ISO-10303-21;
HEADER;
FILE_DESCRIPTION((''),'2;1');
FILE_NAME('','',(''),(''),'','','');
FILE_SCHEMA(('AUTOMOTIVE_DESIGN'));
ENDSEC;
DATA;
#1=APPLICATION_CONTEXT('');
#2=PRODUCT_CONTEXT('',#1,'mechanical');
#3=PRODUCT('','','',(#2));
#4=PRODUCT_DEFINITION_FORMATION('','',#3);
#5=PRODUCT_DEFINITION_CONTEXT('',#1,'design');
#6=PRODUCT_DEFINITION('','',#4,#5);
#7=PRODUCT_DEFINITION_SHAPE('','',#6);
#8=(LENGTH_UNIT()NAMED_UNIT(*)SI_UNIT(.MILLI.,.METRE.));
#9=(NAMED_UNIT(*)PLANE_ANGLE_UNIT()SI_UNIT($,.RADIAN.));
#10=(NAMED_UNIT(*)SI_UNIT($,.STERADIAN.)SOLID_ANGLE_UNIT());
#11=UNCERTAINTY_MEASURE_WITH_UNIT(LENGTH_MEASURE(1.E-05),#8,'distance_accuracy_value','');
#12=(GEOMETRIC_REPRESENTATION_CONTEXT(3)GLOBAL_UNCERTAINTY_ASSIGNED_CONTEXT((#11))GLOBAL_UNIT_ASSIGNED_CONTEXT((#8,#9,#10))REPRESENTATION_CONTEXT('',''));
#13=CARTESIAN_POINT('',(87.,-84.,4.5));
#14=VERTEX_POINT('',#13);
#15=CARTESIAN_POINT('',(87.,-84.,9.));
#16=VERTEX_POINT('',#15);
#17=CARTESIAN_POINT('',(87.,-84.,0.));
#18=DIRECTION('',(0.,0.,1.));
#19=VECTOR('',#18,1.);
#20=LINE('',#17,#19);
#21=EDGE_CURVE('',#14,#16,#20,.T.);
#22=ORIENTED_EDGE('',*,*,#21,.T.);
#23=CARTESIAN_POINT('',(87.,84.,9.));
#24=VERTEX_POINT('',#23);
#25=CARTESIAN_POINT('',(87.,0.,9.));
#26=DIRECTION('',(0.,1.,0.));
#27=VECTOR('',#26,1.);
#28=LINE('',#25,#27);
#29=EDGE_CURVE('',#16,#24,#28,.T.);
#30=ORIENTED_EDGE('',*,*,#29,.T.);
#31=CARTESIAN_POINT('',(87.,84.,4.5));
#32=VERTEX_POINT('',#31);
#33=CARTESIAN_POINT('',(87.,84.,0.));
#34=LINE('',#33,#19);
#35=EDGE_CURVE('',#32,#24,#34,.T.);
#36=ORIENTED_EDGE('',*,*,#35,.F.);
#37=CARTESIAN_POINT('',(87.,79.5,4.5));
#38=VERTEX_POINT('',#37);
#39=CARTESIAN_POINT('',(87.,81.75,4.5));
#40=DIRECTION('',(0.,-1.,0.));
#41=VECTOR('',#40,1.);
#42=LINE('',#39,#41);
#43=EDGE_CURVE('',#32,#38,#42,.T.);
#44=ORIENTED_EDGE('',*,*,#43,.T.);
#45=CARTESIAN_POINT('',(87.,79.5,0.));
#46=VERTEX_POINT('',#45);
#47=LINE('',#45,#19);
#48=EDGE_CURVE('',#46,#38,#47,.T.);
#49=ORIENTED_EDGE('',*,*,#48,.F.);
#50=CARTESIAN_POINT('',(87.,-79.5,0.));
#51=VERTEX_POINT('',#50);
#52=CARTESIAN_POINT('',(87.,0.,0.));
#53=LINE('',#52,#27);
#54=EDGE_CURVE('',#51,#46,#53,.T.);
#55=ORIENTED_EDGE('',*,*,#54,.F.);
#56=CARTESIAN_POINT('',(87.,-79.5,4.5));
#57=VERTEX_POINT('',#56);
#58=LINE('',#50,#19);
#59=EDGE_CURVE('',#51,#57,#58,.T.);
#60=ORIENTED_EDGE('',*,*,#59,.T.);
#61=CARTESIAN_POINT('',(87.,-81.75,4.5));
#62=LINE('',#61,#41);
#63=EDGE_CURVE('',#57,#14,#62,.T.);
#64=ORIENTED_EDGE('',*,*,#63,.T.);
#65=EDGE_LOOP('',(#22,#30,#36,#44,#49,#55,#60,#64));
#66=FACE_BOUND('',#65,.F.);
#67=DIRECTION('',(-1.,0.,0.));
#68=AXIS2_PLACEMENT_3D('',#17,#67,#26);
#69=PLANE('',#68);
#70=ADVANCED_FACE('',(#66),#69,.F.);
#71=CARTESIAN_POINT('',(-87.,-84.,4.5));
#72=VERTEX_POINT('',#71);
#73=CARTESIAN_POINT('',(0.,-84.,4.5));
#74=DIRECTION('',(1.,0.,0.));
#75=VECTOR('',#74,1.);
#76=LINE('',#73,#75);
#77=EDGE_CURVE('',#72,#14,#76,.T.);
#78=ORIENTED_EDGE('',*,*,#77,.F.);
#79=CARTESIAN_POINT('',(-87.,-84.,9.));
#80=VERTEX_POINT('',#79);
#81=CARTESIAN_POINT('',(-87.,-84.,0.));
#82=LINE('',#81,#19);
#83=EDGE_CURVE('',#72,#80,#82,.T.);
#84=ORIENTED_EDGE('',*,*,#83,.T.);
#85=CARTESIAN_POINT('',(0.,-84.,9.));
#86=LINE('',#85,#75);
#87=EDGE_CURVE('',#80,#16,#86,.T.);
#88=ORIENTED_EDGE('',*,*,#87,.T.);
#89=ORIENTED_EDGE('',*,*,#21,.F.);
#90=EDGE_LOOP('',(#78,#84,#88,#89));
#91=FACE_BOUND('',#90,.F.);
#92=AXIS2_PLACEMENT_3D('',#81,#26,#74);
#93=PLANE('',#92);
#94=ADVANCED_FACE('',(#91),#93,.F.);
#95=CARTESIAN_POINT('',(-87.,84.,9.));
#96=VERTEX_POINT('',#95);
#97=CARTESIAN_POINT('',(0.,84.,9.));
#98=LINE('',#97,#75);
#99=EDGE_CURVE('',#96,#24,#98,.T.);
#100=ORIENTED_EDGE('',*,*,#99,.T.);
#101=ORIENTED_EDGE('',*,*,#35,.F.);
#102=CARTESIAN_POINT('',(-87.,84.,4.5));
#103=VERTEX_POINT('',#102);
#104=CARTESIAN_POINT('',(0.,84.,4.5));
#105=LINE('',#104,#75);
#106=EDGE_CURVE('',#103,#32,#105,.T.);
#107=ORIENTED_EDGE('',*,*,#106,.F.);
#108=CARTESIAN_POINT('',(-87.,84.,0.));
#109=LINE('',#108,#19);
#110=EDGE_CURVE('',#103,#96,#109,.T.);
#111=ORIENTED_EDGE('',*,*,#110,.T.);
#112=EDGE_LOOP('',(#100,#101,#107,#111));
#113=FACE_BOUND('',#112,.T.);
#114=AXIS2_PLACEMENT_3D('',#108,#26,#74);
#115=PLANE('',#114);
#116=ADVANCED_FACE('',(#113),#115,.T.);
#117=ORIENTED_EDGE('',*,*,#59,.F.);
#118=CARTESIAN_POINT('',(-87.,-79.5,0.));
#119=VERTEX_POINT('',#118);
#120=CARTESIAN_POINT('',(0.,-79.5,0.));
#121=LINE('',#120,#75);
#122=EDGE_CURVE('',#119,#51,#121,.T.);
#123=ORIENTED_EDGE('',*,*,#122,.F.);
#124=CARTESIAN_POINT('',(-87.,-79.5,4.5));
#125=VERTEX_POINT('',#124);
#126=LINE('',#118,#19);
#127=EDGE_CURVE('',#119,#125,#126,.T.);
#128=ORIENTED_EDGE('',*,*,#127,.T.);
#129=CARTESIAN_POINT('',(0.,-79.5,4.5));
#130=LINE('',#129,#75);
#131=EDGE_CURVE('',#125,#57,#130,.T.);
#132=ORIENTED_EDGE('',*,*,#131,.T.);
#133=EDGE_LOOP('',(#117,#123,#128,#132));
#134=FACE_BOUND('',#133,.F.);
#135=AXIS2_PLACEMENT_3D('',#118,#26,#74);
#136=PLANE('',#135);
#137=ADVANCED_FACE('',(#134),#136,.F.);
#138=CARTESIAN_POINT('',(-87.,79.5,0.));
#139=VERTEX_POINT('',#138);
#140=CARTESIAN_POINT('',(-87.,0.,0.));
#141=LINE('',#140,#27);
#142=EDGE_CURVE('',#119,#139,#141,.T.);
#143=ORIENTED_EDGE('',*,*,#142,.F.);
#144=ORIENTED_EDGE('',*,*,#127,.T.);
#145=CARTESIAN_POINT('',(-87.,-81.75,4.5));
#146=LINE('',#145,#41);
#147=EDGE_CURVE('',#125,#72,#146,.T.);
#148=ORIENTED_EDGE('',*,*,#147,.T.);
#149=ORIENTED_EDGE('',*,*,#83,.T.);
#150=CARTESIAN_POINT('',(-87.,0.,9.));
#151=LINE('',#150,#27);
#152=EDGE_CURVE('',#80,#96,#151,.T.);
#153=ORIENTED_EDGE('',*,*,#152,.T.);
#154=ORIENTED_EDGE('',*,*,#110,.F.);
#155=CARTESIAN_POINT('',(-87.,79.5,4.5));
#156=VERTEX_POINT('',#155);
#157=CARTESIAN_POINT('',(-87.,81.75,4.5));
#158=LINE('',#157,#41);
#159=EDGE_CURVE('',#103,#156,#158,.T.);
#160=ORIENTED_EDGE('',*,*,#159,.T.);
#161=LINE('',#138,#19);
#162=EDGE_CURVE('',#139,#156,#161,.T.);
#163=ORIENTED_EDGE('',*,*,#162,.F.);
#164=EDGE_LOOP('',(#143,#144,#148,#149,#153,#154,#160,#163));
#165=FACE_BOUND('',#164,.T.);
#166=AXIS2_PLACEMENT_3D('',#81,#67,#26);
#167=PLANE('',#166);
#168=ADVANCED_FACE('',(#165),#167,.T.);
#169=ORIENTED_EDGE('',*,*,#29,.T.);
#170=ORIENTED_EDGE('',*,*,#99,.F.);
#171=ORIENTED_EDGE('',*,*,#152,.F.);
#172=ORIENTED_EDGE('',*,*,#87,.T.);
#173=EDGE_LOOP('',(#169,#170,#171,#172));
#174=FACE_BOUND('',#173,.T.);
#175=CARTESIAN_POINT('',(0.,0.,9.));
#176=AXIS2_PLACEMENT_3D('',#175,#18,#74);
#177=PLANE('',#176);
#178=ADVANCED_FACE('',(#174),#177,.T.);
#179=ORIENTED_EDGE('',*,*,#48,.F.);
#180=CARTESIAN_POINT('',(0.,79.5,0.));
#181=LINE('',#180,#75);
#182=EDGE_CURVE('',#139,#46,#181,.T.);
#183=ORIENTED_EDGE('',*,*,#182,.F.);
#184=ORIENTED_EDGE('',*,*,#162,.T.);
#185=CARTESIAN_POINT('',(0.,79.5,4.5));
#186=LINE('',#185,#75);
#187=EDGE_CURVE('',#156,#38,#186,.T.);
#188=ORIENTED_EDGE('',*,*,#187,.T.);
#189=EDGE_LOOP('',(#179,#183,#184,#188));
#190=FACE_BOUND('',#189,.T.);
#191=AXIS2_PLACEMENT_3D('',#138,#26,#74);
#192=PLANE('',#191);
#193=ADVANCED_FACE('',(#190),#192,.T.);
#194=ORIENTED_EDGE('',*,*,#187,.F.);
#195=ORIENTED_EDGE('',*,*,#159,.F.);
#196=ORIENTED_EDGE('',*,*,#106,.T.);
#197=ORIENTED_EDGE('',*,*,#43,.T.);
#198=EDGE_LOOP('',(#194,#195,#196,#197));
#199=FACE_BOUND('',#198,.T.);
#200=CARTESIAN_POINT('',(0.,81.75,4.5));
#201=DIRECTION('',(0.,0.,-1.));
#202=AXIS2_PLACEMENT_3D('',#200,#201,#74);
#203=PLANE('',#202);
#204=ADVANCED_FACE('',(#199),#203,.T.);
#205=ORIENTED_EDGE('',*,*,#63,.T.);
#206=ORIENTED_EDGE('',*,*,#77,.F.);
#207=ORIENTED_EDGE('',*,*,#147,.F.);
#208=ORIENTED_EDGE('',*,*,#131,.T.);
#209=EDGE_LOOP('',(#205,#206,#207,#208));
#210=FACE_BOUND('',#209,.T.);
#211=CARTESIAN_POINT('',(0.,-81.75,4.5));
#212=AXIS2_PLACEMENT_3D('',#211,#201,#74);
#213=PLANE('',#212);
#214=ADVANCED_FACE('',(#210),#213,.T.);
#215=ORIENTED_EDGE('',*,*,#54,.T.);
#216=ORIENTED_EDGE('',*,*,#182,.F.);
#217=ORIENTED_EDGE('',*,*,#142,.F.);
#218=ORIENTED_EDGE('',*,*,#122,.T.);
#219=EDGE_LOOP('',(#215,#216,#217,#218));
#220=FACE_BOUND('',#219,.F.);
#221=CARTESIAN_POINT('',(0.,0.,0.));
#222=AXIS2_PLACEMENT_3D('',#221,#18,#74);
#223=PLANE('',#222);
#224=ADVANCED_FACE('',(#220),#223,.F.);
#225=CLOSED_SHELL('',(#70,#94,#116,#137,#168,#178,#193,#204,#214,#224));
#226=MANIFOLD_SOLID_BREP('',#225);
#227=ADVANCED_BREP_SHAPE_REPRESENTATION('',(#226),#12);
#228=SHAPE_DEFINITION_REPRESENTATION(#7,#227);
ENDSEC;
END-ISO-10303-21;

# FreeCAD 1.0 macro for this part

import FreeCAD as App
import Part
import Sketcher

V = App.Vector


def add_polygon(sketch, points):
    """Adds a closed chain of lines whose ends are joined by coincident constraints."""
    first, n = sketch.GeometryCount, len(points)
    for a, b in zip(points, points[1:] + points[:1]):
        sketch.addGeometry(Part.LineSegment(App.Vector(*a, 0), App.Vector(*b, 0)), False)
    for i in range(n):
        sketch.addConstraint(Sketcher.Constraint("Coincident", first + i, 2, first + (i + 1) % n, 1))

doc = App.newDocument("Part")
body = doc.addObject("PartDesign::Body", "Body")

# Sketch on XY plane
sketch1 = body.newObject("Sketcher::SketchObject", "Sketch")
sketch1.AttachmentSupport = (doc.getObject("XY_Plane"), [""])
sketch1.MapMode = "FlatFace"
add_polygon(sketch1, [(-87, 84), (-87, -84), (87, -84), (87, 84)])  # lines 0-3
sketch1.addConstraint([
    Sketcher.Constraint("Vertical", 0),
    Sketcher.Constraint("Horizontal", 1),
    Sketcher.Constraint("Vertical", 2),
    Sketcher.Constraint("Horizontal", 3),
    Sketcher.Constraint("Symmetric", 0, 2, 2, 2, -1, 1),
    Sketcher.Constraint("DistanceX", 1, 1, 1, 2, 174.0),
    Sketcher.Constraint("DistanceY", 0, 2, 0, 1, 168.0),
])
pad1 = body.newObject("PartDesign::Pad", "Pad")
pad1.Profile = sketch1
pad1.Length = 9

# Sketch on XY plane
sketch2 = body.newObject("Sketcher::SketchObject", "Sketch001")
sketch2.AttachmentSupport = (doc.getObject("XY_Plane"), [""])
sketch2.MapMode = "FlatFace"
add_polygon(sketch2, [(-87, -84), (-87, -79.5), (87, -79.5), (87, -84)])  # lines 0-3
add_polygon(sketch2, [(-87, 79.5), (-87, 84), (87, 84), (87, 79.5)])  # lines 4-7
sketch2.addConstraint([
    Sketcher.Constraint("Vertical", 0),
    Sketcher.Constraint("Horizontal", 1),
    Sketcher.Constraint("Vertical", 2),
    Sketcher.Constraint("Horizontal", 3),
    Sketcher.Constraint("Vertical", 4),
    Sketcher.Constraint("Horizontal", 5),
    Sketcher.Constraint("Vertical", 6),
    Sketcher.Constraint("Horizontal", 7),
    Sketcher.Constraint("Symmetric", 2, 2, 4, 2, -1, 1),
    Sketcher.Constraint("Symmetric", 0, 2, 6, 2, -1, 1),
    Sketcher.Constraint("Vertical", 3, 2, 4, 2),
    Sketcher.Constraint("DistanceX", 1, 1, 1, 2, 174.0),
    Sketcher.Constraint("DistanceY", 0, 1, 0, 2, 4.5),
    Sketcher.Constraint("DistanceY", 2, 2, -1, 1, 84.0),
])
pocket1 = body.newObject("PartDesign::Pocket", "Pocket")
pocket1.Profile = sketch2
pocket1.Length = 4.5
pocket1.Reversed = True

doc.recompute()
